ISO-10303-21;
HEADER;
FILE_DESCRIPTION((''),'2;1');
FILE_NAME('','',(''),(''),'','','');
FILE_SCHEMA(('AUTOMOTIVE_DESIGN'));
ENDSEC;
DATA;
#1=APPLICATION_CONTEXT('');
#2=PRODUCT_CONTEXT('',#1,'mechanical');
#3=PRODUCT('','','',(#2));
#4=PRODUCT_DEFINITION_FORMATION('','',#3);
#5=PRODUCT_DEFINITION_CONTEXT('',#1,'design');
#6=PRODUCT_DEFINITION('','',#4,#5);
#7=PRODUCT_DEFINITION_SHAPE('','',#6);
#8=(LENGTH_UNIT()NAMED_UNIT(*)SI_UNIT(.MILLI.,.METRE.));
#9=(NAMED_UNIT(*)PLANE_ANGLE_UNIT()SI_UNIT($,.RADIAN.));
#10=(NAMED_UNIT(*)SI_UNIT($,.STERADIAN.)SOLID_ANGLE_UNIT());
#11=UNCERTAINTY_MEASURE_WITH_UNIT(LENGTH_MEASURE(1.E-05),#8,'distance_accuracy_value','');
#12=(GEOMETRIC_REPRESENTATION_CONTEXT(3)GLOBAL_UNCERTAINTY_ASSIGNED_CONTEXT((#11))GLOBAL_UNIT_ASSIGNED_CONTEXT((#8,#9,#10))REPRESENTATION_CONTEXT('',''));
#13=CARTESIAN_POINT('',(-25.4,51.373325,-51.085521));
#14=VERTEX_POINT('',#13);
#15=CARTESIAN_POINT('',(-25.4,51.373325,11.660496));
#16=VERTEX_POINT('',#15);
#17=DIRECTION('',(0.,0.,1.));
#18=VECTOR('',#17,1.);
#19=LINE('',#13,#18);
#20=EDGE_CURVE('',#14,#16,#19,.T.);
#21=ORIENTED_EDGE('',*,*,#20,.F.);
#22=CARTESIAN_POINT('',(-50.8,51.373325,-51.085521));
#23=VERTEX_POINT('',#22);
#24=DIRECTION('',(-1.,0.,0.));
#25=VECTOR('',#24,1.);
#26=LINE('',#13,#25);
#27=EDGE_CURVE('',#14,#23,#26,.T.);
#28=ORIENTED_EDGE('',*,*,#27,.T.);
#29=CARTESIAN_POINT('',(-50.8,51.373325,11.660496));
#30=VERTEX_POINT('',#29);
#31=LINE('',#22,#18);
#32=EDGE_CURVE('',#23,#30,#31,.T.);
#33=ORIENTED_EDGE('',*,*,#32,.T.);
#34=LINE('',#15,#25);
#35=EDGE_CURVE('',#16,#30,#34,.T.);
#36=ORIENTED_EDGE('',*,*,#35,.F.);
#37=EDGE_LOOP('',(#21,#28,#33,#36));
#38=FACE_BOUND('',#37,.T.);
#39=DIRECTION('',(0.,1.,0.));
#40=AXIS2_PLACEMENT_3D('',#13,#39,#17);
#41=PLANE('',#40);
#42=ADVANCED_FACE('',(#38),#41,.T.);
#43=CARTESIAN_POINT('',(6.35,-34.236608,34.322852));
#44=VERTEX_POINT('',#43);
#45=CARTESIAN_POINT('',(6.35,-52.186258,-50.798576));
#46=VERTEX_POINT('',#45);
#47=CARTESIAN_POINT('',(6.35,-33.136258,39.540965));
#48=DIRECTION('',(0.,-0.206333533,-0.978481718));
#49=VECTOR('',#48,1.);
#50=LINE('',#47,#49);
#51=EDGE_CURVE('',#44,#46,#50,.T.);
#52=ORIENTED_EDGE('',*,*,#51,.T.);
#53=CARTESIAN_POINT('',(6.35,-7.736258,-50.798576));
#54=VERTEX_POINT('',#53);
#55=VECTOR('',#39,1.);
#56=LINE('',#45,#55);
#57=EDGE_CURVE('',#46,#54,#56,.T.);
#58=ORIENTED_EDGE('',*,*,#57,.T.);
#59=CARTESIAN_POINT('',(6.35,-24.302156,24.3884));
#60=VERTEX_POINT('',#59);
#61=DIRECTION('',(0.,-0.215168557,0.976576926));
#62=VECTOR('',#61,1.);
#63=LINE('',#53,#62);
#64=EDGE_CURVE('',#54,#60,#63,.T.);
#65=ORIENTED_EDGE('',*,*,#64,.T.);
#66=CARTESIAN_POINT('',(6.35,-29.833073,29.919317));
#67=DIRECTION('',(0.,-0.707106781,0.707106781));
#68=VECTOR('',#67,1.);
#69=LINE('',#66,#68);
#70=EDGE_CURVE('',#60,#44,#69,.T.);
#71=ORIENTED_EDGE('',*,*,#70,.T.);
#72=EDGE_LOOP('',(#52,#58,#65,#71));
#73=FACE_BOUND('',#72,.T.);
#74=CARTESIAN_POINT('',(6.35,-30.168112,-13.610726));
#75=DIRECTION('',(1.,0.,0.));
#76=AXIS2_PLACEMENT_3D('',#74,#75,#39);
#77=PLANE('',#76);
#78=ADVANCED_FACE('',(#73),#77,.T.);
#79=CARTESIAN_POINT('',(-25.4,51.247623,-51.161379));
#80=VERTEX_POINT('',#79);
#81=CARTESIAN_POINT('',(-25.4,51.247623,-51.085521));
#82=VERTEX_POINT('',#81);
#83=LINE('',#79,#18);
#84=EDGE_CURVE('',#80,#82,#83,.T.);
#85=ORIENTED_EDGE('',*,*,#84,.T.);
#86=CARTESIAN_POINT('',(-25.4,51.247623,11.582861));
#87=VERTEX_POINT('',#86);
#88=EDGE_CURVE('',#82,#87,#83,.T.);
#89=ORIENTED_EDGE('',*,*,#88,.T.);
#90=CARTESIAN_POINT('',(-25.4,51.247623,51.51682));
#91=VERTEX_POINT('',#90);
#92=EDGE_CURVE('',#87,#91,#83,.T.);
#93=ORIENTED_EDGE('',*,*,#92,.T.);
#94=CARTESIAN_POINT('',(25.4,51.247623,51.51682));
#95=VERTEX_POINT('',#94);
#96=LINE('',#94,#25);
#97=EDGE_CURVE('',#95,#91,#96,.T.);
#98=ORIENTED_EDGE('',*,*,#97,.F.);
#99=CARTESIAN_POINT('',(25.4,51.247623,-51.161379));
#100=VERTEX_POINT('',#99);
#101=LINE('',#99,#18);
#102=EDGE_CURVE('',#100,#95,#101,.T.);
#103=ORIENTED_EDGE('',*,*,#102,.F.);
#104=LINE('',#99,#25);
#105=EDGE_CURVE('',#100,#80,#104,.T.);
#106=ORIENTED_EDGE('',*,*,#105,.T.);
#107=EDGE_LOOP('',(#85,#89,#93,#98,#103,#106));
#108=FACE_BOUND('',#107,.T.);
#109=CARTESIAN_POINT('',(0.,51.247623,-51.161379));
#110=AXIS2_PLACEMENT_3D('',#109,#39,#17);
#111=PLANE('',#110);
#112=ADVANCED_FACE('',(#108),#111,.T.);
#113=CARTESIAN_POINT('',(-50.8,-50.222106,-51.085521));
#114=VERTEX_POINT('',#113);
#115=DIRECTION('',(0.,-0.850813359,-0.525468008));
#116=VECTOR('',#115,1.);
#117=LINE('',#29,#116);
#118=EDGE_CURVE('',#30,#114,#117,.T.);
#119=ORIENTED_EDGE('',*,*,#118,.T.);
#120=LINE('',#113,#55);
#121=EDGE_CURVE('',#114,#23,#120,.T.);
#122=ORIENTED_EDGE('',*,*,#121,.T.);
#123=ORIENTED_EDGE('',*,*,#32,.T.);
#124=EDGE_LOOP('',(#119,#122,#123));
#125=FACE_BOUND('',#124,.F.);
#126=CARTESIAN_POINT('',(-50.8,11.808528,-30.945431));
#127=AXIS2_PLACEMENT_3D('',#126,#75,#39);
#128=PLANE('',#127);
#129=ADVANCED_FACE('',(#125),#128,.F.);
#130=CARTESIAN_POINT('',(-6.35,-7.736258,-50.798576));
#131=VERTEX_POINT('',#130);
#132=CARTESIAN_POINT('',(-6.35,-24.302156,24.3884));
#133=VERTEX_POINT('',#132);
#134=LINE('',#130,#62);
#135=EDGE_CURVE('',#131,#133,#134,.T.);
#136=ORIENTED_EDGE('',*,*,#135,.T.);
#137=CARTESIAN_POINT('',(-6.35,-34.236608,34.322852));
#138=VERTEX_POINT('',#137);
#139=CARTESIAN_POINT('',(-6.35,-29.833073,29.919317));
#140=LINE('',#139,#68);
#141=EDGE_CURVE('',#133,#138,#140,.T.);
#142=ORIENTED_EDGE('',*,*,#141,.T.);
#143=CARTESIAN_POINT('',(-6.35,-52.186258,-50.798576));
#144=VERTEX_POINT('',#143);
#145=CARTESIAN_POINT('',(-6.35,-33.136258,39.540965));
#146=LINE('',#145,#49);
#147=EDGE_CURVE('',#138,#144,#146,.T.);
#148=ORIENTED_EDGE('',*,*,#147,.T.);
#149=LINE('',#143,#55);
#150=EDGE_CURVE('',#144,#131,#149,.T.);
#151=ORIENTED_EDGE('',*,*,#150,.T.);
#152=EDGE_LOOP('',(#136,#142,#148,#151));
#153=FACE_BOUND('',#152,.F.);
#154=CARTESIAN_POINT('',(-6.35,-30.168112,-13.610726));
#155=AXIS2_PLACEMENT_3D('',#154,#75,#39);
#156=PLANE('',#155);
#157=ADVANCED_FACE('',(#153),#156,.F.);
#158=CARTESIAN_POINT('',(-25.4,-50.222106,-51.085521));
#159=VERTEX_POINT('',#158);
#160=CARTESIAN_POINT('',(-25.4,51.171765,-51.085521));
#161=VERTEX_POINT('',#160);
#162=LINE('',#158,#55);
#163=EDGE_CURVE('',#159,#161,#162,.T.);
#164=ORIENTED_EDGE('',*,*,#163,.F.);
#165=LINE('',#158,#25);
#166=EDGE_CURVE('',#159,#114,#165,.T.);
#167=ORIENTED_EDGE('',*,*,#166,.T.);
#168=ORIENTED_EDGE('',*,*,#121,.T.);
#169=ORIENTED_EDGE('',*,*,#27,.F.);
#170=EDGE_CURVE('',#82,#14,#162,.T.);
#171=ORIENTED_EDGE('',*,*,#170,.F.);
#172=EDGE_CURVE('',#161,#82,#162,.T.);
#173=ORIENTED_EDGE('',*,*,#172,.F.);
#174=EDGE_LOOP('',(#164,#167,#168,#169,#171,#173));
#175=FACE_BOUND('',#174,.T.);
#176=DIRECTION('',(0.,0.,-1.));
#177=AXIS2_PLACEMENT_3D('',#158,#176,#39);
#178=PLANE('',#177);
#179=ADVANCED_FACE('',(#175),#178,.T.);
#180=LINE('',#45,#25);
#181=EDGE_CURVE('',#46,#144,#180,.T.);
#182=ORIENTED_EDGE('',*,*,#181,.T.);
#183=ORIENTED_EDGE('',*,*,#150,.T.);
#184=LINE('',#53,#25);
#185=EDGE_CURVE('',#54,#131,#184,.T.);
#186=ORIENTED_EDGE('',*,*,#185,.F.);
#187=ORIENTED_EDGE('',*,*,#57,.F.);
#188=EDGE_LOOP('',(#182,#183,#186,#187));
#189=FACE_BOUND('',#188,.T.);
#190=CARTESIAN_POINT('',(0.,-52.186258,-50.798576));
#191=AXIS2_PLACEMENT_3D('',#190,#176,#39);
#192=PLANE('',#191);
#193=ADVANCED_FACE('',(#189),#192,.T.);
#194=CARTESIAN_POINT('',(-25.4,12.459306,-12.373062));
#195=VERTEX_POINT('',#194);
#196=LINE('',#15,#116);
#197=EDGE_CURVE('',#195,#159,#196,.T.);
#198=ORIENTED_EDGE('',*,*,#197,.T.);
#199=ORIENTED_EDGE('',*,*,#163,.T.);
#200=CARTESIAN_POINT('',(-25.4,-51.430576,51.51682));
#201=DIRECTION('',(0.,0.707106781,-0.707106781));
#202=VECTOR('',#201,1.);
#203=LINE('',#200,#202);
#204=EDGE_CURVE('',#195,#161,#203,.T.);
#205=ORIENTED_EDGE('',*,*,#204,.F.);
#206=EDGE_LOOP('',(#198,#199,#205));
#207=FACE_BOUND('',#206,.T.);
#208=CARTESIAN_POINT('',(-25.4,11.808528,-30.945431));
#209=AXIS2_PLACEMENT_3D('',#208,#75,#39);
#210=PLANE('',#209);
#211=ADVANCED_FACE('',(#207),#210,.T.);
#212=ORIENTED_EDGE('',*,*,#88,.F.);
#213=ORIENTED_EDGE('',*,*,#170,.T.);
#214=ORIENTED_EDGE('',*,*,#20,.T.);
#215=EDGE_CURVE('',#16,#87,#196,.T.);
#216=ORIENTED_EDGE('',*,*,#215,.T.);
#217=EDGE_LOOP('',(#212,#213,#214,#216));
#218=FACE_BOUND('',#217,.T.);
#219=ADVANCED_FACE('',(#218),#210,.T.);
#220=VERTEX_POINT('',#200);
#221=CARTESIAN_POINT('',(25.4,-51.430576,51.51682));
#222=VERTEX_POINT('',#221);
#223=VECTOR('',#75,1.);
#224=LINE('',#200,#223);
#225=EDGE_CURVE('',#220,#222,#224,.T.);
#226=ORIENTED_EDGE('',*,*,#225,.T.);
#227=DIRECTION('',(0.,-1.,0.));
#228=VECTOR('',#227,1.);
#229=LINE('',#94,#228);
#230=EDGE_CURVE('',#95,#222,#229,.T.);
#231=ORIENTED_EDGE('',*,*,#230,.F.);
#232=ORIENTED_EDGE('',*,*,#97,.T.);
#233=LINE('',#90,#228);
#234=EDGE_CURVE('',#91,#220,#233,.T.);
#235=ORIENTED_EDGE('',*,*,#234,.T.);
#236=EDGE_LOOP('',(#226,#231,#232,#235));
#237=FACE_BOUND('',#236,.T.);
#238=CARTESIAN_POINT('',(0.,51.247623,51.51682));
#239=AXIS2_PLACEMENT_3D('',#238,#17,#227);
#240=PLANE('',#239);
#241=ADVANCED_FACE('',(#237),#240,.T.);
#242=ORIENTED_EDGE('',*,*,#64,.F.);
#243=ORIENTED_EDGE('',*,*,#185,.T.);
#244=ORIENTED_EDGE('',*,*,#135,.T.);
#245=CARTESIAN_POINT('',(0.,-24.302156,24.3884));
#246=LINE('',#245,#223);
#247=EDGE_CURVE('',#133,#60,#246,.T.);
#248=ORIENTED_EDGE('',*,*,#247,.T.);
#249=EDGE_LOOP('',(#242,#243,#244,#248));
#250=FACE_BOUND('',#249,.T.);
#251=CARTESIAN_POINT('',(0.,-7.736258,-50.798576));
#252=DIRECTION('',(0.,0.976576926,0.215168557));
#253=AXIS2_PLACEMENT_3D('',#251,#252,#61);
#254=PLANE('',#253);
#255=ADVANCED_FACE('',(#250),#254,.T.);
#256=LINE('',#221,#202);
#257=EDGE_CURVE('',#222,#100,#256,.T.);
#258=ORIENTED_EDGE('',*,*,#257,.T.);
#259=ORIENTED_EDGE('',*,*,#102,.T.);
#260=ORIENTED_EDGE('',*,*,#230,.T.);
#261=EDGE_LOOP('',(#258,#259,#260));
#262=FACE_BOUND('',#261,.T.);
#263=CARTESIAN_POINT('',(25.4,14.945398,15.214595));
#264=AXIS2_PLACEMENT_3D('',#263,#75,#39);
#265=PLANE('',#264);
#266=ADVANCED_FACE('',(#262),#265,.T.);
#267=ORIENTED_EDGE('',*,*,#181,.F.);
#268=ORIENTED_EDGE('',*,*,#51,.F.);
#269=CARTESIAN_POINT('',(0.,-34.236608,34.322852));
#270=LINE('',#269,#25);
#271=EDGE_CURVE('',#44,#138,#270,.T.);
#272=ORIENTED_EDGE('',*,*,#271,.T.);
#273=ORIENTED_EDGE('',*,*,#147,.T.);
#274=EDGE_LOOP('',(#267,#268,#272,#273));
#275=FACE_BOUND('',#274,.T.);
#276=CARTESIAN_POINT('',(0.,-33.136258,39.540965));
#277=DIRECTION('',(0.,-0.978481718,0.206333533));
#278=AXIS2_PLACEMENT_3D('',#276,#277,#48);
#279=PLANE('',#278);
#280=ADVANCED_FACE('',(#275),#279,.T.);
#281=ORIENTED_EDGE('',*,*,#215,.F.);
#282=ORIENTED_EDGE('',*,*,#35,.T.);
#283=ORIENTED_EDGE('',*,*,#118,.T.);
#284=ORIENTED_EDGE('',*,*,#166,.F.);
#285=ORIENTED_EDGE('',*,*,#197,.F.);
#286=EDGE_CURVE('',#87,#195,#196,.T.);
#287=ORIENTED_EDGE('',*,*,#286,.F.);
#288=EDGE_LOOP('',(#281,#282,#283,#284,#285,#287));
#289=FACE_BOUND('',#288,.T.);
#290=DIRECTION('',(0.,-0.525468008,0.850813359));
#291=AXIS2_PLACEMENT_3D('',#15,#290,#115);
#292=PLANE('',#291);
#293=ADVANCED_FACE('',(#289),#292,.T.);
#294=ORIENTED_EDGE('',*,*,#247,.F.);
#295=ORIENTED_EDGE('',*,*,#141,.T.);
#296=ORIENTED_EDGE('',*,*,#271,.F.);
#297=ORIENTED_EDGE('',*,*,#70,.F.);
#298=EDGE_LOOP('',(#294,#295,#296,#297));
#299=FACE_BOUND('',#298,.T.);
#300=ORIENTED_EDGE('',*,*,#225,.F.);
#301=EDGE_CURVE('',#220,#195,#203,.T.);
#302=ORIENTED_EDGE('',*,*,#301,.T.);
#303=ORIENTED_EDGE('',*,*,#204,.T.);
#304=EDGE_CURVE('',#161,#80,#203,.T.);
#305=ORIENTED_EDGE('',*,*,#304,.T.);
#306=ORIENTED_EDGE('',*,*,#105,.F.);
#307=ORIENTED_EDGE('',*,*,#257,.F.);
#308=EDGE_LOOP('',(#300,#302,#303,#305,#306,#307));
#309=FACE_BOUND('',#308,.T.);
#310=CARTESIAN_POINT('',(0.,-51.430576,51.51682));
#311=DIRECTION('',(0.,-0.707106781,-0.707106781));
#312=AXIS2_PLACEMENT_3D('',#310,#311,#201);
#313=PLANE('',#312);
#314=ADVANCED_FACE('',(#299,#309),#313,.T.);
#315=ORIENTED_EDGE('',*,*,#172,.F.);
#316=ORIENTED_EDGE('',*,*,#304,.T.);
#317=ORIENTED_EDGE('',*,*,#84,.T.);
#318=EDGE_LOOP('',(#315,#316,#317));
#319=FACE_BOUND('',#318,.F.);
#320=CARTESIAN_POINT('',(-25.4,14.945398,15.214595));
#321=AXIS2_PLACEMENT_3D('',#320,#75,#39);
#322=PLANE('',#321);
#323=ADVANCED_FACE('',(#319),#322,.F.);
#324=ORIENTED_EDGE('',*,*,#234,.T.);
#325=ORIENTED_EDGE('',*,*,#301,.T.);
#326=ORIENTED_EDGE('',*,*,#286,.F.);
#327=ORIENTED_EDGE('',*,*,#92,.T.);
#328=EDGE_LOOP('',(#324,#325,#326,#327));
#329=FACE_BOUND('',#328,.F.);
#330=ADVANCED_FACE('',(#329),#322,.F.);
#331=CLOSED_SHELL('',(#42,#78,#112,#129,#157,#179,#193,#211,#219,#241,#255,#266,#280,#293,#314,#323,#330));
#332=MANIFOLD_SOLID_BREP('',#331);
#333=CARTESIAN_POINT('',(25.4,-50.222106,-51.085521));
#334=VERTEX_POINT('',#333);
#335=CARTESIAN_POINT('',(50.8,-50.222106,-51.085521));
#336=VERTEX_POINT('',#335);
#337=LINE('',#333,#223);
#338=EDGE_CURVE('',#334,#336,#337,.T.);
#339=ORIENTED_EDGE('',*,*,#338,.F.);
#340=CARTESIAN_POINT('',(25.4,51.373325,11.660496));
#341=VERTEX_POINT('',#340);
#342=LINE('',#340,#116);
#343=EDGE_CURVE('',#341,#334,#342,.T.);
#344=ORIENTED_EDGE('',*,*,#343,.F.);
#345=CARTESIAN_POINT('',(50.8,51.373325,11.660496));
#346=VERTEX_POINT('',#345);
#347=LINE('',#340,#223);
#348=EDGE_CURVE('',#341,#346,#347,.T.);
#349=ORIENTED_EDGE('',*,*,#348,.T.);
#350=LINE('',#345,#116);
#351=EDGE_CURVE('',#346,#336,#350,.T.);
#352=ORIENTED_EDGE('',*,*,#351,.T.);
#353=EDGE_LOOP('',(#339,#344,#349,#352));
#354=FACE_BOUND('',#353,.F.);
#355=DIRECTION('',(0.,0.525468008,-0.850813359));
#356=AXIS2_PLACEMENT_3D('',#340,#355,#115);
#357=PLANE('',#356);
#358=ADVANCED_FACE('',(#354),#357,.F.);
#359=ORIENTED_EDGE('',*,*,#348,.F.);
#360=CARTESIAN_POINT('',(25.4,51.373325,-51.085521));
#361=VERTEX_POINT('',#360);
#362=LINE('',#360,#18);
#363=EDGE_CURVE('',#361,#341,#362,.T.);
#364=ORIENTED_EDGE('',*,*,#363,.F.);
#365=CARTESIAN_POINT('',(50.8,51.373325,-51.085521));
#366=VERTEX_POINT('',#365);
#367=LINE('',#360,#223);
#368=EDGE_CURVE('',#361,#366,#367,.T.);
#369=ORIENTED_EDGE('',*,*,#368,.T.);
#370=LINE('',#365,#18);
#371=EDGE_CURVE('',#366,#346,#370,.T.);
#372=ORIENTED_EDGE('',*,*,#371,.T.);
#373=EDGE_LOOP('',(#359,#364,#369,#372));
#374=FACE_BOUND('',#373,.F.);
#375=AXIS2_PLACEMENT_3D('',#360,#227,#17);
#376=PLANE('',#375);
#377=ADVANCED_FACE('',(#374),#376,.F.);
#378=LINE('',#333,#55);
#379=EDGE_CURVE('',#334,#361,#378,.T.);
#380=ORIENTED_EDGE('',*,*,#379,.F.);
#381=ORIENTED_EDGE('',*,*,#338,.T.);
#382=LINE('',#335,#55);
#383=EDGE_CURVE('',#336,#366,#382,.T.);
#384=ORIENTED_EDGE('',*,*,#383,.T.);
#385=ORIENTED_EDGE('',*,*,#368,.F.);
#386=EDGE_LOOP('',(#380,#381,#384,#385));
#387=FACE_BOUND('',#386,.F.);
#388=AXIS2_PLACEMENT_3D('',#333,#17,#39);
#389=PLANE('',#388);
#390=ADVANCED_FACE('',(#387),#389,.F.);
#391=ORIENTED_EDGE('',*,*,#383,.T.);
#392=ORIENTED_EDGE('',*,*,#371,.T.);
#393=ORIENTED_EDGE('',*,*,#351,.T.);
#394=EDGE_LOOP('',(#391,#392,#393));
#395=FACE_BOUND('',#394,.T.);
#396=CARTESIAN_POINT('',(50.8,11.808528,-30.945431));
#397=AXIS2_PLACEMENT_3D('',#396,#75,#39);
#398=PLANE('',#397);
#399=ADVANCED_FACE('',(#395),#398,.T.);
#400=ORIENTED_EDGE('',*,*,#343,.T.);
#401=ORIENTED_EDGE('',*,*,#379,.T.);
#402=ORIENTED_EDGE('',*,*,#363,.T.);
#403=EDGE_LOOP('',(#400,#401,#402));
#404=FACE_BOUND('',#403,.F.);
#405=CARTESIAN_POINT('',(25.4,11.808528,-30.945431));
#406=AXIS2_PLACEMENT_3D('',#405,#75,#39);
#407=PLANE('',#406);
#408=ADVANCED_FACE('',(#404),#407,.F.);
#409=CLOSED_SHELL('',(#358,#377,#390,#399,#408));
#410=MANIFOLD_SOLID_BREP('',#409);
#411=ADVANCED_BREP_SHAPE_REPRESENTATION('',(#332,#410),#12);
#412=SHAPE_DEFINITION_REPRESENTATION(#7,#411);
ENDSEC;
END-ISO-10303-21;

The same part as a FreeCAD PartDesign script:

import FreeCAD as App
import Part
import Sketcher

V = App.Vector
Q = App.Units.Quantity

doc = App.newDocument("Part")
body = doc.addObject("PartDesign::Body", "Body")

# Sketch on YZ plane
sketch1 = doc.addObject("Sketcher::SketchObject", "Sketch")
body.addObject(sketch1)
sketch1.AttachmentSupport = (doc.YZ_Plane, [""])
sketch1.MapMode = "FlatFace"
sketch1.addGeometry([
    Part.LineSegment(V(51, 52, 0), V(-51, 52, 0)),
    Part.LineSegment(V(-51, 52, 0), V(51, -51, 0)),
    Part.LineSegment(V(51, -51, 0), V(51, 52, 0)),
], False)
sketch1.addConstraint([
    Sketcher.Constraint("Coincident", 0, 2, 1, 1),
    Sketcher.Constraint("Coincident", 1, 2, 2, 1),
    Sketcher.Constraint("Coincident", 2, 2, 0, 1),
    Sketcher.Constraint("Horizontal", 0),
    Sketcher.Constraint("Vertical", 2),
    Sketcher.Constraint("Equal", 0, 2),
    Sketcher.Constraint("DistanceX", 0, 2, 0, 1, Q("102.678198 mm")),
    Sketcher.Constraint("DistanceY", -1, 1, 0, 2, Q("51.51682 mm")),
    Sketcher.Constraint("DistanceX", 0, 2, -1, 1, Q("51.430576 mm")),
])
pad1 = doc.addObject("PartDesign::Pad", "Pad")
body.addObject(pad1)
pad1.Profile = sketch1
pad1.Length = Q("2 in")
pad1.Midplane = True

# Sketch on YZ plane
sketch2 = doc.addObject("Sketcher::SketchObject", "Sketch001")
body.addObject(sketch2)
sketch2.AttachmentSupport = (doc.YZ_Plane, [""])
sketch2.MapMode = "FlatFace"
sketch2.addGeometry([
    Part.LineSegment(V(-8, -51, 0), V(-27, 36, 0)),
    Part.LineSegment(V(-27, 36, 0), V(-33, 40, 0)),
    Part.LineSegment(V(-33, 40, 0), V(-52, -51, 0)),
    Part.LineSegment(V(-52, -51, 0), V(-8, -51, 0)),
], False)
sketch2.addConstraint([
    Sketcher.Constraint("Coincident", 0, 2, 1, 1),
    Sketcher.Constraint("Coincident", 1, 2, 2, 1),
    Sketcher.Constraint("Coincident", 2, 2, 3, 1),
    Sketcher.Constraint("Coincident", 3, 2, 0, 1),
    Sketcher.Constraint("Horizontal", 3),
    Sketcher.Constraint("DistanceX", 2, 2, 0, 2, Q("1 in")),
    Sketcher.Constraint("DistanceX", 1, 2, 3, 2, Q("1 in")),
    Sketcher.Constraint("DistanceX", 3, 1, 3, 2, Q("1.75 in")),
    Sketcher.Constraint("Distance", 0, Q("88.535241 mm")),
    Sketcher.Constraint("Distance", 1, Q("7.440559 mm")),
    Sketcher.Constraint("DistanceX", 0, 2, -1, 1, Q("26.786258 mm")),
    Sketcher.Constraint("DistanceY", -1, 1, 0, 2, Q("35.662897 mm")),
])
pad2 = doc.addObject("PartDesign::Pad", "Pad001")
body.addObject(pad2)
pad2.Profile = sketch2
pad2.Length = Q("0.5 in")
pad2.Midplane = True

# Sketch on YZ plane
sketch3 = doc.addObject("Sketcher::SketchObject", "Sketch002")
body.addObject(sketch3)
sketch3.AttachmentSupport = (doc.YZ_Plane, [""])
sketch3.MapMode = "FlatFace"
sketch3.AttachmentOffset = App.Placement(V(0, 0, -1 * 25.4), App.Rotation())
sketch3.addGeometry([
    Part.LineSegment(V(51, -51, 0), V(51, 12, 0)),
    Part.LineSegment(V(51, 12, 0), V(-50, -51, 0)),
    Part.LineSegment(V(-50, -51, 0), V(51, -51, 0)),
], False)
sketch3.addConstraint([
    Sketcher.Constraint("Coincident", 0, 2, 1, 1),
    Sketcher.Constraint("Coincident", 1, 2, 2, 1),
    Sketcher.Constraint("Coincident", 2, 2, 0, 1),
    Sketcher.Constraint("Vertical", 0),
    Sketcher.Constraint("Horizontal", 2),
    Sketcher.Constraint("DistanceX", 2, 1, 2, 2, Q("101.595432 mm")),
    Sketcher.Constraint("DistanceY", 0, 1, 0, 2, Q("62.746016 mm")),
    Sketcher.Constraint("DistanceY", 1, 2, -1, 1, Q("51.085521 mm")),
    Sketcher.Constraint("DistanceX", -1, 1, 0, 2, Q("51.373325 mm")),
])
pad3 = doc.addObject("PartDesign::Pad", "Pad002")
body.addObject(pad3)
pad3.Profile = sketch3
pad3.Length = Q("1 in")
pad3.Reversed = True
body2 = doc.addObject("PartDesign::Body", "Body001")

# Sketch on YZ plane
sketch4 = doc.addObject("Sketcher::SketchObject", "Sketch003")
body2.addObject(sketch4)
sketch4.AttachmentSupport = (doc.getObject("YZ_Plane001"), [""])
sketch4.MapMode = "FlatFace"
sketch4.AttachmentOffset = App.Placement(V(0, 0, 1 * 25.4), App.Rotation())
sketch4.addGeometry([
    Part.LineSegment(V(51, -51, 0), V(51, 12, 0)),
    Part.LineSegment(V(51, 12, 0), V(-50, -51, 0)),
    Part.LineSegment(V(-50, -51, 0), V(51, -51, 0)),
], False)
sketch4.addConstraint([
    Sketcher.Constraint("Coincident", 0, 2, 1, 1),
    Sketcher.Constraint("Coincident", 1, 2, 2, 1),
    Sketcher.Constraint("Coincident", 2, 2, 0, 1),
    Sketcher.Constraint("Vertical", 0),
    Sketcher.Constraint("Horizontal", 2),
    Sketcher.Constraint("DistanceX", 2, 1, 2, 2, Q("101.595432 mm")),
    Sketcher.Constraint("DistanceY", 0, 1, 0, 2, Q("62.746016 mm")),
    Sketcher.Constraint("DistanceY", 1, 2, -1, 1, Q("51.085521 mm")),
    Sketcher.Constraint("DistanceX", -1, 1, 0, 2, Q("51.373325 mm")),
])
pad4 = doc.addObject("PartDesign::Pad", "Pad003")
body2.addObject(pad4)
pad4.Profile = sketch4
pad4.Length = Q("1 in")

doc.recompute()
